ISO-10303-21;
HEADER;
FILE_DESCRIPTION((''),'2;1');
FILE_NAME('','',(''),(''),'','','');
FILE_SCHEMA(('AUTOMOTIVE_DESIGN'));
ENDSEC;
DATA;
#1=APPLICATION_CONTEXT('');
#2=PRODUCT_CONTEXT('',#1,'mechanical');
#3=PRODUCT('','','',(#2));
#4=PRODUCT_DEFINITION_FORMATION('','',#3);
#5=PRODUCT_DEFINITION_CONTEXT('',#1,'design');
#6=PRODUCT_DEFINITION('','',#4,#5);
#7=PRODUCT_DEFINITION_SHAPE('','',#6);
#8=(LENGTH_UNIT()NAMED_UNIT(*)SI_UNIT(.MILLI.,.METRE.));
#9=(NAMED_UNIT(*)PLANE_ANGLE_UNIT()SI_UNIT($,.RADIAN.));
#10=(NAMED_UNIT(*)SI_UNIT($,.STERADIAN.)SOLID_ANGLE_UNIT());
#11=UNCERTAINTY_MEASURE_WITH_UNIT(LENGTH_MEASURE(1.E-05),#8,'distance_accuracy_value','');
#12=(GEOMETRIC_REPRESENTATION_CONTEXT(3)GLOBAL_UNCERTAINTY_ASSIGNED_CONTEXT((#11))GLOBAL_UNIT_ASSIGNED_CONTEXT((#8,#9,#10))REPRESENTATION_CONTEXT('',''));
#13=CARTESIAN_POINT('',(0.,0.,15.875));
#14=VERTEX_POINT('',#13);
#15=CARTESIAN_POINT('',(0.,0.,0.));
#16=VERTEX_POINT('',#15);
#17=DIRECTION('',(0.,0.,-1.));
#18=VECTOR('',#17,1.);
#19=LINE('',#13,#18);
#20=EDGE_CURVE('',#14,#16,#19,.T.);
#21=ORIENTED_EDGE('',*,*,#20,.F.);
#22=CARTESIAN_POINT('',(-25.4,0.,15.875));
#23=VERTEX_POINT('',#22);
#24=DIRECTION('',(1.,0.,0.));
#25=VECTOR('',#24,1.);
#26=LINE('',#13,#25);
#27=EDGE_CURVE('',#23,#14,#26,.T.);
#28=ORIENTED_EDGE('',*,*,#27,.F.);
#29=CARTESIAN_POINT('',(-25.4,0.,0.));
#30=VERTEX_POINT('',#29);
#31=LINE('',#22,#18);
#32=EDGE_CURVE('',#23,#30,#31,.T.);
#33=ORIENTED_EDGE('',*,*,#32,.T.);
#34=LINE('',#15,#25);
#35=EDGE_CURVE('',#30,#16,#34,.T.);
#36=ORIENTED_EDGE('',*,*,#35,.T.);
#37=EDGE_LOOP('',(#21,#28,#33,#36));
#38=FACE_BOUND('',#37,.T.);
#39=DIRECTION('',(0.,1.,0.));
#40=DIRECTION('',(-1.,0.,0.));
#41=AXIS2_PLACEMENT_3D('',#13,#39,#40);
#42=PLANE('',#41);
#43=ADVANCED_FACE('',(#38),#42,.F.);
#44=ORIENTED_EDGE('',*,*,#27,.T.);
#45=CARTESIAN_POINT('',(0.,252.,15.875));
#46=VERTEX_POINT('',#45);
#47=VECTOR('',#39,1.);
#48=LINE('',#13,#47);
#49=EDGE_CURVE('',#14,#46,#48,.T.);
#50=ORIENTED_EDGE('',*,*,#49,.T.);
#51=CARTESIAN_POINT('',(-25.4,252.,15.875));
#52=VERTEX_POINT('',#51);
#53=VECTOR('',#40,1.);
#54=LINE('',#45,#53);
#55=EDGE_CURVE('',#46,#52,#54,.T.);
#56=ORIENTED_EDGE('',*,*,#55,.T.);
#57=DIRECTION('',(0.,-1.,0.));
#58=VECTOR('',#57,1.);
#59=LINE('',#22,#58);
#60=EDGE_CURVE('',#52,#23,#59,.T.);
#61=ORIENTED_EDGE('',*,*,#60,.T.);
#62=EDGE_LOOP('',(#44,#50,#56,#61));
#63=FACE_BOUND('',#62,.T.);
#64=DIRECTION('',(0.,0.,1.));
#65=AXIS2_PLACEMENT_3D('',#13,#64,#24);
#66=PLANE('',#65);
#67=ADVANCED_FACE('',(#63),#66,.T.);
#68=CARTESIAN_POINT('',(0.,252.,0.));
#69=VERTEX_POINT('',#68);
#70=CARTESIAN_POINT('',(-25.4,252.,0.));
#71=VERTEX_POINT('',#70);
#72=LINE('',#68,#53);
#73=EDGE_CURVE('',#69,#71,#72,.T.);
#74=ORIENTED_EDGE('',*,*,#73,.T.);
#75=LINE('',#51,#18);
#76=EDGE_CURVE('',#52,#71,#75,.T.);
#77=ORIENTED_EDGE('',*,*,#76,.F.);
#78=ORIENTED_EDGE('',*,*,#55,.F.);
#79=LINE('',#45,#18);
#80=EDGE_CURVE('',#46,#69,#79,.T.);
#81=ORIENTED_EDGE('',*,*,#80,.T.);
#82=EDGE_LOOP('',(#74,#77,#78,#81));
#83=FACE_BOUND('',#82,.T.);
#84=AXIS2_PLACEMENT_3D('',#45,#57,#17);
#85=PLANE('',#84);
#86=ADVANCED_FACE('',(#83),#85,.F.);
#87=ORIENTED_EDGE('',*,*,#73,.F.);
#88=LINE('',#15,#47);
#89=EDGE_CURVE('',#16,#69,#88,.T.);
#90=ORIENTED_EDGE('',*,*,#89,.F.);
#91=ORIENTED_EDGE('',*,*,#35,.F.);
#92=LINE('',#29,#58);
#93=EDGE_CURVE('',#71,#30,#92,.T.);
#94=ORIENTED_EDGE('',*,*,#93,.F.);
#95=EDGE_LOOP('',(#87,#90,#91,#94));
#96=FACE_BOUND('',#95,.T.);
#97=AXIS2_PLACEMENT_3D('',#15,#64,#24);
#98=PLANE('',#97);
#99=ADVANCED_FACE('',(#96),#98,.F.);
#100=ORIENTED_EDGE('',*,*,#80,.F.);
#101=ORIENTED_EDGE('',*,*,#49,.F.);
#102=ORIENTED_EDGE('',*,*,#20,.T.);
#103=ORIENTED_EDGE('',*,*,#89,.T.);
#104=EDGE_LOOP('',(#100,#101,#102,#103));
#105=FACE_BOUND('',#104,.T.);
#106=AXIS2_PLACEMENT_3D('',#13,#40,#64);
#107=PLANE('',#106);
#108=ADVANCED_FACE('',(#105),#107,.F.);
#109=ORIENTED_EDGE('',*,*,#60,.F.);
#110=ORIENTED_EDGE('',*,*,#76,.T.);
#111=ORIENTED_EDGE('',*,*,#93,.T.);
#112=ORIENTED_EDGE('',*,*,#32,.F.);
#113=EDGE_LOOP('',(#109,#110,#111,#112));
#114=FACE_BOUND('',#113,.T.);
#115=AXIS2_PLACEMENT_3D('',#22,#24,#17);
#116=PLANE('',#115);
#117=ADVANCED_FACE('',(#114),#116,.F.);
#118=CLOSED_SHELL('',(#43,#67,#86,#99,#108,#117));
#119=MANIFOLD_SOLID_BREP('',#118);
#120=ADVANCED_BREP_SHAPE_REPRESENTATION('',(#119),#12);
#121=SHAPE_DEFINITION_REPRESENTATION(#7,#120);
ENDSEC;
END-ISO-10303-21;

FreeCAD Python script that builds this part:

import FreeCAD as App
import Part
import Sketcher
Q = App.Units.Quantity

doc = App.newDocument("Part")
body = doc.addObject("PartDesign::Body", "Body")

sketch1 = doc.addObject("Sketcher::SketchObject", "Sketch")
body.addObject(sketch1)
sketch1.AttachmentSupport = (doc.XY_Plane, [""])
sketch1.MapMode = "FlatFace"
sketch1.addGeometry([
    Part.LineSegment(App.Vector(-25, 252, 0), App.Vector(-25, 0, 0)),
    Part.LineSegment(App.Vector(-25, 0, 0), App.Vector(0, 0, 0)),
    Part.LineSegment(App.Vector(0, 0, 0), App.Vector(0, 252, 0)),
    Part.LineSegment(App.Vector(0, 252, 0), App.Vector(-25, 252, 0)),
], False)
sketch1.addConstraint([
    Sketcher.Constraint("Coincident", 0, 2, 1, 1),
    Sketcher.Constraint("Coincident", 1, 2, 2, 1),
    Sketcher.Constraint("Coincident", 2, 2, 3, 1),
    Sketcher.Constraint("Coincident", 3, 2, 0, 1),
    Sketcher.Constraint("Vertical", 0),
    Sketcher.Constraint("Horizontal", 1),
    Sketcher.Constraint("Vertical", 2),
    Sketcher.Constraint("Horizontal", 3),
    Sketcher.Constraint("Coincident", 1, 2, -1, 1),
    Sketcher.Constraint("DistanceX", 1, 1, 1, 2, Q("1 in")),
    Sketcher.Constraint("DistanceY", 0, 2, 0, 1, 252.0),
])
pad1 = doc.addObject("PartDesign::Pad", "Pad")
body.addObject(pad1)
pad1.Profile = sketch1
pad1.Length = Q("0.625 in")

doc.recompute()
